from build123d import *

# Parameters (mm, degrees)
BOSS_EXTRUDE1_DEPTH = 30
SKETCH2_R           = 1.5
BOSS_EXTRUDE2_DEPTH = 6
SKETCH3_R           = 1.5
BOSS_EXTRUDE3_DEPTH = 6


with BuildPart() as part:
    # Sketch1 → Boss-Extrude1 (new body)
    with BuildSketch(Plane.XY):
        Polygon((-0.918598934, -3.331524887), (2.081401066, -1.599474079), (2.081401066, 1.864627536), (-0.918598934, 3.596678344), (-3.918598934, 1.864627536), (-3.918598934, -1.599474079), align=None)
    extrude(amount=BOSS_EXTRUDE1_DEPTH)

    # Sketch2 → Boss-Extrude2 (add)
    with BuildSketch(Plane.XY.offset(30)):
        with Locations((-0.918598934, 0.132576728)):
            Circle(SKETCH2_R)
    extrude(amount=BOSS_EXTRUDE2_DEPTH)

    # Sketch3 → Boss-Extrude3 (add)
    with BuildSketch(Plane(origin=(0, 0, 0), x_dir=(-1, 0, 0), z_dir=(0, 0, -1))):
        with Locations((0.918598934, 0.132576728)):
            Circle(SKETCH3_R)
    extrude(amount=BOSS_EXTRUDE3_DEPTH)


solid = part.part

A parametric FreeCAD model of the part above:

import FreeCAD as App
import Part
import Sketcher
Q = App.Units.Quantity

doc = App.newDocument("Part")
params = doc.addObject("Spreadsheet::Sheet", "Params")
for row, (alias, value) in enumerate([
    ("pad1_length", "30 mm"),
    ("sketch2_diameter", "3 mm"),
    ("pad2_length", "6 mm"),
    ("sketch3_diameter", "3 mm"),
    ("pad3_length", "6 mm"),
], start=1):
    params.set(f"A{row}", alias)
    params.set(f"B{row}", "=" + value)
    params.setAlias(f"B{row}", alias)

body = doc.addObject("PartDesign::Body", "Body")

# Sketch on XY plane
sketch1 = doc.addObject("Sketcher::SketchObject", "Sketch")
body.addObject(sketch1)
sketch1.AttachmentSupport = (doc.XY_Plane, [""])
sketch1.MapMode = "FlatFace"
sketch1.addGeometry([
    Part.LineSegment(App.Vector(-0.9, -3.3, 0), App.Vector(2.1, -1.6, 0)),  # 0
    Part.LineSegment(App.Vector(2.1, -1.6, 0), App.Vector(2.1, 1.9, 0)),  # 1
    Part.LineSegment(App.Vector(2.1, 1.9, 0), App.Vector(-0.9, 3.6, 0)),  # 2
    Part.LineSegment(App.Vector(-0.9, 3.6, 0), App.Vector(-3.9, 1.9, 0)),  # 3
    Part.LineSegment(App.Vector(-3.9, 1.9, 0), App.Vector(-3.9, -1.6, 0)),  # 4
    Part.LineSegment(App.Vector(-3.9, -1.6, 0), App.Vector(-0.9, -3.3, 0)),  # 5
], False)
sketch1.addConstraint([
    Sketcher.Constraint("Coincident", 0, 2, 1, 1),
    Sketcher.Constraint("Coincident", 1, 2, 2, 1),
    Sketcher.Constraint("Coincident", 2, 2, 3, 1),
    Sketcher.Constraint("Coincident", 3, 2, 4, 1),
    Sketcher.Constraint("Coincident", 4, 2, 5, 1),
    Sketcher.Constraint("Coincident", 5, 2, 0, 1),
    Sketcher.Constraint("Vertical", 1),
    Sketcher.Constraint("Vertical", 4),
    Sketcher.Constraint("Parallel", 0, 3),
    Sketcher.Constraint("Parallel", 2, 5),
    Sketcher.Constraint("Horizontal", 1, 2, 3, 2),
    Sketcher.Constraint("Horizontal", 0, 2, 4, 2),
    Sketcher.Constraint("Vertical", 2, 2, 5, 2),
    Sketcher.Constraint("Angle", 0, Q("30 deg")),
    Sketcher.Constraint("DistanceX", 2, 2, 1, 2, Q("3 mm")),
    Sketcher.Constraint("DistanceY", 1, 1, 1, 2, Q("3.464102 mm")),
    Sketcher.Constraint("DistanceX", -1, 1, 0, 2, Q("2.081401 mm")),
    Sketcher.Constraint("DistanceY", -1, 1, 2, 2, Q("3.596678 mm")),
])
pad1 = doc.addObject("PartDesign::Pad", "Pad")
body.addObject(pad1)
pad1.Profile = sketch1
pad1.setExpression("Length", "Params.pad1_length")

# Sketch on XY plane
sketch2 = doc.addObject("Sketcher::SketchObject", "Sketch001")
body.addObject(sketch2)
sketch2.AttachmentSupport = (doc.XY_Plane, [""])
sketch2.MapMode = "FlatFace"
sketch2.AttachmentOffset = App.Placement(App.Vector(0, 0, 30), App.Rotation())
sketch2.addGeometry(Part.Circle(App.Vector(-0.9, 0.1, 0), App.Vector(0, 0, 1), 1.5), False)
sketch2.addConstraint([
    Sketcher.Constraint("Diameter", 0, Q("3 mm")),
    Sketcher.Constraint("DistanceX", 0, 3, -1, 1, Q("0.918599 mm")),
    Sketcher.Constraint("DistanceY", -1, 1, 0, 3, Q("0.132577 mm")),
])
sketch2.setExpression("Constraints[0]", "Params.sketch2_diameter")
pad2 = doc.addObject("PartDesign::Pad", "Pad001")
body.addObject(pad2)
pad2.Profile = sketch2
pad2.setExpression("Length", "Params.pad2_length")

# Sketch on XY plane
sketch3 = doc.addObject("Sketcher::SketchObject", "Sketch002")
body.addObject(sketch3)
sketch3.AttachmentSupport = (doc.XY_Plane, [""])
sketch3.MapMode = "FlatFace"
sketch3.addGeometry(Part.Circle(App.Vector(-0.9, 0.1, 0), App.Vector(0, 0, 1), 1.5), False)
sketch3.addConstraint([
    Sketcher.Constraint("Diameter", 0, Q("3 mm")),
    Sketcher.Constraint("DistanceX", 0, 3, -1, 1, Q("0.918599 mm")),
    Sketcher.Constraint("DistanceY", -1, 1, 0, 3, Q("0.132577 mm")),
])
sketch3.setExpression("Constraints[0]", "Params.sketch3_diameter")
pad3 = doc.addObject("PartDesign::Pad", "Pad002")
body.addObject(pad3)
pad3.Profile = sketch3
pad3.setExpression("Length", "Params.pad3_length")
pad3.Reversed = True

doc.recompute()
